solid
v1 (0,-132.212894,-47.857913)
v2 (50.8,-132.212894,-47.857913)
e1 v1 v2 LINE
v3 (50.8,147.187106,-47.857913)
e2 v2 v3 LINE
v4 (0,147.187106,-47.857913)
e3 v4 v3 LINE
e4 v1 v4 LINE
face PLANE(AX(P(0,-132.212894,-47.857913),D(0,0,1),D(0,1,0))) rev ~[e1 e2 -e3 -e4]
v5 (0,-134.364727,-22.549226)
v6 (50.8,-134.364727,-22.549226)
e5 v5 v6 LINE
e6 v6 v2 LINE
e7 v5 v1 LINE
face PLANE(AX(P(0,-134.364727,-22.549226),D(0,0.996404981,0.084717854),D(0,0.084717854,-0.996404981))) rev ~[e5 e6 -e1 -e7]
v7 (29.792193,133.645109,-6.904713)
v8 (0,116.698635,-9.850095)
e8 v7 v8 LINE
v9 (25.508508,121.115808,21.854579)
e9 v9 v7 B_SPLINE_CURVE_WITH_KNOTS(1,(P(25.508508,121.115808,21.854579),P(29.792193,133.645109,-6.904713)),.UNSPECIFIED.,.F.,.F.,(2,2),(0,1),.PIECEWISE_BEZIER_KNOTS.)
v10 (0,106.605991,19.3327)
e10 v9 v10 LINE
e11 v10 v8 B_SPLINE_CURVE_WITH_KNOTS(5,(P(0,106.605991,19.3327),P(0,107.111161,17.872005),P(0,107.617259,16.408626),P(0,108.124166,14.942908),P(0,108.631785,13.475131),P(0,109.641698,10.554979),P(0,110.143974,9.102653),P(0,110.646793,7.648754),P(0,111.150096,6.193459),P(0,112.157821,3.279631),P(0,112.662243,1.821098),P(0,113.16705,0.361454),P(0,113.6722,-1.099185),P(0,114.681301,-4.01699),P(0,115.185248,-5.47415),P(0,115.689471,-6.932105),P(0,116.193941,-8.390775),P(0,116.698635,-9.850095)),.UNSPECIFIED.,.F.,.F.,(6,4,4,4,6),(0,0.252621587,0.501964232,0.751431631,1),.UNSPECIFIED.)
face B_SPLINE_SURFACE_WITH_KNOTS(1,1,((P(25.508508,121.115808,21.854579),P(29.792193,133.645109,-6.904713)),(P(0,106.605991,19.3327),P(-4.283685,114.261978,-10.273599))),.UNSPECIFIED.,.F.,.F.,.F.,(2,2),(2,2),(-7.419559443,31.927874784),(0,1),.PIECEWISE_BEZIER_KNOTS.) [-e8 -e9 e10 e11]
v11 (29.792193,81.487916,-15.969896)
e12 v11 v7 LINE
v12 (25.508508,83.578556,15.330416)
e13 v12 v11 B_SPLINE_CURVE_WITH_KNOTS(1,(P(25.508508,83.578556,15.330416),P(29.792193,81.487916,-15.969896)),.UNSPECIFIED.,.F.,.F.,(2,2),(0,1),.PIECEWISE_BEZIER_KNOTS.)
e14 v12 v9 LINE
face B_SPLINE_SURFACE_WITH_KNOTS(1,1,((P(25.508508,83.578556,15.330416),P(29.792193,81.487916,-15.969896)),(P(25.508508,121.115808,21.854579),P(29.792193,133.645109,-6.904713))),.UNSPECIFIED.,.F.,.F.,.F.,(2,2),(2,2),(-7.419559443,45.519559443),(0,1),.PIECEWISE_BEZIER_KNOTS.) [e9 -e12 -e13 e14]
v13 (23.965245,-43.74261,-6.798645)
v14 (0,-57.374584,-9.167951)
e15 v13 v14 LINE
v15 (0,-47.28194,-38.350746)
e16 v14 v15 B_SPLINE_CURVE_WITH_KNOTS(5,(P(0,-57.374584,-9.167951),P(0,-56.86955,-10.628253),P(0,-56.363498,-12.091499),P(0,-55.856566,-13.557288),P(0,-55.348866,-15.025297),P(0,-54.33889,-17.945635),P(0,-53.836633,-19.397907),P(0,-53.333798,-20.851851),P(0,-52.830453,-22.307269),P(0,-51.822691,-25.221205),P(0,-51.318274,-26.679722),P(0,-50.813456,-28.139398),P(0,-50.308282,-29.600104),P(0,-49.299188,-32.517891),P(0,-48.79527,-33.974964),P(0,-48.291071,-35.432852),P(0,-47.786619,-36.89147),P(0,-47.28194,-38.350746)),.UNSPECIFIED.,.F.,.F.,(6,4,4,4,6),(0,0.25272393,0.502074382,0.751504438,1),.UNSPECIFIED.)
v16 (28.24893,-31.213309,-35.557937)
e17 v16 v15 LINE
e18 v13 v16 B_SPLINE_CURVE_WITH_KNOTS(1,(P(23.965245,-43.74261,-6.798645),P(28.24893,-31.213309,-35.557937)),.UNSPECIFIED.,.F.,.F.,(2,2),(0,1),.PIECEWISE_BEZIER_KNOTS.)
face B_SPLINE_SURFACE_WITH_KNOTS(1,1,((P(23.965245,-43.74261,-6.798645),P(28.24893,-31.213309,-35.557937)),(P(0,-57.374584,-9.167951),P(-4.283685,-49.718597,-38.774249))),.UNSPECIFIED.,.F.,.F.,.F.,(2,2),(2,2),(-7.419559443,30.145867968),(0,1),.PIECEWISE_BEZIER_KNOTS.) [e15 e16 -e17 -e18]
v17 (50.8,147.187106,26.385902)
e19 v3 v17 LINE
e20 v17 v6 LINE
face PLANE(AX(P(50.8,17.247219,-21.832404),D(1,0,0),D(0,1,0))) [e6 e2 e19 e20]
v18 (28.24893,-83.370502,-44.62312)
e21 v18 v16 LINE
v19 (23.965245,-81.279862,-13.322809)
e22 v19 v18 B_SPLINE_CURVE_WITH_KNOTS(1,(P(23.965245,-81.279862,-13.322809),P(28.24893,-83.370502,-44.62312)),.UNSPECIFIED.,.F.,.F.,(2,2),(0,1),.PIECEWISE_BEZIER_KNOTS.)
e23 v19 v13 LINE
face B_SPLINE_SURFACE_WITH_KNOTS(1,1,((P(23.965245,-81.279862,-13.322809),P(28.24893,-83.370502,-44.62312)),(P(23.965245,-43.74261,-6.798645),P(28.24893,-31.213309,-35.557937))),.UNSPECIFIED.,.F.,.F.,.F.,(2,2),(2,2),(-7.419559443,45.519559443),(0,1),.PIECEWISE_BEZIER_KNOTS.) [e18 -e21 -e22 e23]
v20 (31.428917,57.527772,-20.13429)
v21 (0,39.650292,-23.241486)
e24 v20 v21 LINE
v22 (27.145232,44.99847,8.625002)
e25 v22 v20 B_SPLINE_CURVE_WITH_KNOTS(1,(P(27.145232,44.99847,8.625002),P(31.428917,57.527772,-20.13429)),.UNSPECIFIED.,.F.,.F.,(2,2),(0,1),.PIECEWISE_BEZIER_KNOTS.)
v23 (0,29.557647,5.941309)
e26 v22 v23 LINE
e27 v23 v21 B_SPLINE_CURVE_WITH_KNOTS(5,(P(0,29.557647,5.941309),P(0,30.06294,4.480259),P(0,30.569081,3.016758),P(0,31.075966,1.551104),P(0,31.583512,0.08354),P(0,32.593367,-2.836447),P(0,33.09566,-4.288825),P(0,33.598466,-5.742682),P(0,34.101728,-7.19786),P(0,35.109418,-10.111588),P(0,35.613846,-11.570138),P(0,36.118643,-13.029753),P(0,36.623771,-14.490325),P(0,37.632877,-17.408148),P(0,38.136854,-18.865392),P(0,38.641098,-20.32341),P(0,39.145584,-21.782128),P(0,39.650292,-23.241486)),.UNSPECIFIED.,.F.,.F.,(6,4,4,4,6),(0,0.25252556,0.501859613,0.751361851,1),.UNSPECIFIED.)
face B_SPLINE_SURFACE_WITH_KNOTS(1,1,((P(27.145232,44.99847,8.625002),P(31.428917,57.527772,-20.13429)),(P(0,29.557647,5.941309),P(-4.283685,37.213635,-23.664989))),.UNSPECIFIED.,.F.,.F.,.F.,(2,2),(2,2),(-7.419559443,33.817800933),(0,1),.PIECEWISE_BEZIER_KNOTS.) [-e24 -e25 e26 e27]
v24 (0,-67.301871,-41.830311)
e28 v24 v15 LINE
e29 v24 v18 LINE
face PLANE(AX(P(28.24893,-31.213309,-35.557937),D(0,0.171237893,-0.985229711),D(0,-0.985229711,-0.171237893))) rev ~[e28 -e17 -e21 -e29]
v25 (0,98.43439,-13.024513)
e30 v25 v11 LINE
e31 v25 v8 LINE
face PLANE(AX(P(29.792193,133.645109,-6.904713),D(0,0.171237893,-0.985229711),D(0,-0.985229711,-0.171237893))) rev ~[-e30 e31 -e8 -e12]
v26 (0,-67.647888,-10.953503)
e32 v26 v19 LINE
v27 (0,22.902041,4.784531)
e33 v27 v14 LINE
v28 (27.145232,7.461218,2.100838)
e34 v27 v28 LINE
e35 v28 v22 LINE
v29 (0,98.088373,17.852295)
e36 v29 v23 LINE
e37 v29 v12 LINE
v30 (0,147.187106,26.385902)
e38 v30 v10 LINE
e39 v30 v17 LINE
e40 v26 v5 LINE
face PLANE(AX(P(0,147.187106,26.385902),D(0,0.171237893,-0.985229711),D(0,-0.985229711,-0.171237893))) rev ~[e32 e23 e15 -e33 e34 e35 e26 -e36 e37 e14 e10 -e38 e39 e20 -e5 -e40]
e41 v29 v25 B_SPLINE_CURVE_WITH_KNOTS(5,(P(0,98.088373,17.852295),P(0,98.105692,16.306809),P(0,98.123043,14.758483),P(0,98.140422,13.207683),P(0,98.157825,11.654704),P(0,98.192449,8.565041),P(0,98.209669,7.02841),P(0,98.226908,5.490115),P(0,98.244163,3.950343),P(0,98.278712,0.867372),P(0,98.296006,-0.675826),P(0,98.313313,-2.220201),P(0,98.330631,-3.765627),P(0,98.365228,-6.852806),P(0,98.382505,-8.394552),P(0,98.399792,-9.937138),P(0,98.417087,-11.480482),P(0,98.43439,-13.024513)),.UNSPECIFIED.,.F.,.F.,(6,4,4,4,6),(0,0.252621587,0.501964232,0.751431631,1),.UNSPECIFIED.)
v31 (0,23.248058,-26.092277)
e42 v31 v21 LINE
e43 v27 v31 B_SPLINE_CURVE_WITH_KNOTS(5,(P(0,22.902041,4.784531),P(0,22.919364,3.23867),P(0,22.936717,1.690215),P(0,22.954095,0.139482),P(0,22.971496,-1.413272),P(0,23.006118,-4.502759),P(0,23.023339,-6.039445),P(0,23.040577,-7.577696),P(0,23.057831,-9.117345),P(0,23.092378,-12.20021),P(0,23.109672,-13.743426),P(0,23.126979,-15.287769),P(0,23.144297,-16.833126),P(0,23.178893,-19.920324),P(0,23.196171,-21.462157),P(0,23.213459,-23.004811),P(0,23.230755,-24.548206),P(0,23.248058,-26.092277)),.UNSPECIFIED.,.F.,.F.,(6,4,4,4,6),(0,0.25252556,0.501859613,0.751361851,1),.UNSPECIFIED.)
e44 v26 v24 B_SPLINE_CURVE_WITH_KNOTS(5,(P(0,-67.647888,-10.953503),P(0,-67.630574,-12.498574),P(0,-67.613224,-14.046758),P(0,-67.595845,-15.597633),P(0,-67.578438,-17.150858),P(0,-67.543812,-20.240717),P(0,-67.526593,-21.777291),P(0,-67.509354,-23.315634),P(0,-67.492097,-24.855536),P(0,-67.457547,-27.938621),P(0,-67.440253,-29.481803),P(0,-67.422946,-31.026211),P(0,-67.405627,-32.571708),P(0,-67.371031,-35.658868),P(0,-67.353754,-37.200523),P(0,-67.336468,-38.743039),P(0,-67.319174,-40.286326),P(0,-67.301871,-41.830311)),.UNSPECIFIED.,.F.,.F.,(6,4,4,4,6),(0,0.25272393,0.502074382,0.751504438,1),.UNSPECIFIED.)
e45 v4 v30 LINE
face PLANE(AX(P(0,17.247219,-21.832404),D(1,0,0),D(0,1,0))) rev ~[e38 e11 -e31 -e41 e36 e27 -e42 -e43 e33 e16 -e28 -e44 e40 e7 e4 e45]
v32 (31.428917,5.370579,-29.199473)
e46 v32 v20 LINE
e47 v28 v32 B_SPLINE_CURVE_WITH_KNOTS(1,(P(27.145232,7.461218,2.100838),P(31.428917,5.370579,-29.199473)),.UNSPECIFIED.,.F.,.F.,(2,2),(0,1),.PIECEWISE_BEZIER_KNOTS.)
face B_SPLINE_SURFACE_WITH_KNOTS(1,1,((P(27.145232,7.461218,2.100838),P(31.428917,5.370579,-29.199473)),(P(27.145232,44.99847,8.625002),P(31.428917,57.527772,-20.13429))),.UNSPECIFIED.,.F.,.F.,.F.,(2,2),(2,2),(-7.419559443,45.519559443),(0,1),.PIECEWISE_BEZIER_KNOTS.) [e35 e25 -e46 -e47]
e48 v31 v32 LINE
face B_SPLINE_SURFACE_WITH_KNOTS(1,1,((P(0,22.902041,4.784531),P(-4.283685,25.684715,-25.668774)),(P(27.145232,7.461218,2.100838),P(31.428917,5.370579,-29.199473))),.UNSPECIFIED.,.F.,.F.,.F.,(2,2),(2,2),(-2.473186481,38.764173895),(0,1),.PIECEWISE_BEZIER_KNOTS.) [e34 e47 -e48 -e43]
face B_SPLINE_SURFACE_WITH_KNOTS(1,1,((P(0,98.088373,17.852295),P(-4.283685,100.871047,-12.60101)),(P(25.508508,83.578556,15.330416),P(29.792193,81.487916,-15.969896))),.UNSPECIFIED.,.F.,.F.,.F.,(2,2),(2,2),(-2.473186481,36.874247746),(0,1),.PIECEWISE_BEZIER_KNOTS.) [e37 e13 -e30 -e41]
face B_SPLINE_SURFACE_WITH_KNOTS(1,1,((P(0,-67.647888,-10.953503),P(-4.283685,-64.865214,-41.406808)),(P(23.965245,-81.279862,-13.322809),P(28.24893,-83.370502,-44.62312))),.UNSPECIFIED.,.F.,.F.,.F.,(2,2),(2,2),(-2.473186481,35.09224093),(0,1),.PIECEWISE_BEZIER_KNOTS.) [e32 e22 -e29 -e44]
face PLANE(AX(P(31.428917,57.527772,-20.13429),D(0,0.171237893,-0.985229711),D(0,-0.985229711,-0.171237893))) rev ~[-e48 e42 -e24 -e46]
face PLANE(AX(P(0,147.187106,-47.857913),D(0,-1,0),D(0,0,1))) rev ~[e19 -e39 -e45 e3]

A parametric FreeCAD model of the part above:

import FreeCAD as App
import Part
import Sketcher
Q = App.Units.Quantity

doc = App.newDocument("Part")
body = doc.addObject("PartDesign::Body", "Body")

# Sketch on YZ plane
sketch1 = body.newObject("Sketcher::SketchObject", "Sketch")
sketch1.AttachmentSupport = (doc.getObject("YZ_Plane"), [""])
sketch1.MapMode = "FlatFace"
sketch1.addGeometry([
    Part.LineSegment(App.Vector(-134, -23, 0), App.Vector(-132, -48, 0)),
    Part.LineSegment(App.Vector(-132, -48, 0), App.Vector(147, -48, 0)),
    Part.LineSegment(App.Vector(147, -48, 0), App.Vector(147, 26, 0)),
    Part.LineSegment(App.Vector(147, 26, 0), App.Vector(-134, -23, 0)),
], False)
sketch1.addConstraint([
    Sketcher.Constraint("Coincident", 0, 2, 1, 1),
    Sketcher.Constraint("Coincident", 1, 2, 2, 1),
    Sketcher.Constraint("Coincident", 2, 2, 3, 1),
    Sketcher.Constraint("Coincident", 3, 2, 0, 1),
    Sketcher.Constraint("Horizontal", 1),
    Sketcher.Constraint("Vertical", 2),
    Sketcher.Constraint("DistanceX", 1, 1, 1, 2, Q("11 in")),
    Sketcher.Constraint("Distance", 0, Q("1 in")),
    Sketcher.Constraint("Distance", 3, Q("285.77278 mm")),
    Sketcher.Constraint("DistanceY", 2, 1, 2, 2, Q("74.243815 mm")),
    Sketcher.Constraint("DistanceX", 0, 2, -1, 1, Q("132.212894 mm")),
    Sketcher.Constraint("DistanceY", 0, 2, -1, 1, Q("47.857913 mm")),
])
pad1 = body.newObject("PartDesign::Pad", "Pad")
pad1.Profile = sketch1
pad1.Length = Q("2 in")

# Sketch on an angled plane
sketch2 = body.newObject("Sketcher::SketchObject", "Sketch001")
sketch2.Placement = App.Placement(App.Vector(0, -0.135649, 0.780465), App.Rotation(App.Vector(1, 0, 0), App.Vector(0, 0.985229711, 0.171237893), App.Vector(0, -0.171237893, 0.985229711), "ZXY"))
sketch2.addGeometry([
    Part.LineSegment(App.Vector(24, -44, 0), App.Vector(0, -58, 0)),  # 0
    Part.LineSegment(App.Vector(0, -58, 0), App.Vector(0, -69, 0)),  # 1
    Part.LineSegment(App.Vector(0, -69, 0), App.Vector(24, -82, 0)),  # 2
    Part.LineSegment(App.Vector(24, -82, 0), App.Vector(24, -44, 0)),  # 3
    Part.LineSegment(App.Vector(26, 123, 0), App.Vector(0, 108, 0)),  # 4
    Part.LineSegment(App.Vector(0, 108, 0), App.Vector(0, 100, 0)),  # 5
    Part.LineSegment(App.Vector(0, 100, 0), App.Vector(26, 85, 0)),  # 6
    Part.LineSegment(App.Vector(26, 85, 0), App.Vector(26, 123, 0)),  # 7
    Part.LineSegment(App.Vector(27, 46, 0), App.Vector(0, 30, 0)),  # 8
    Part.LineSegment(App.Vector(0, 30, 0), App.Vector(0, 23, 0)),  # 9
    Part.LineSegment(App.Vector(0, 23, 0), App.Vector(27, 8, 0)),  # 10
    Part.LineSegment(App.Vector(27, 8, 0), App.Vector(27, 46, 0)),  # 11
], False)
sketch2.addConstraint([
    Sketcher.Constraint("Coincident", 0, 2, 1, 1),
    Sketcher.Constraint("Coincident", 1, 2, 2, 1),
    Sketcher.Constraint("Coincident", 2, 2, 3, 1),
    Sketcher.Constraint("Coincident", 3, 2, 0, 1),
    Sketcher.Constraint("Coincident", 4, 2, 5, 1),
    Sketcher.Constraint("Coincident", 5, 2, 6, 1),
    Sketcher.Constraint("Coincident", 6, 2, 7, 1),
    Sketcher.Constraint("Coincident", 7, 2, 4, 1),
    Sketcher.Constraint("Coincident", 8, 2, 9, 1),
    Sketcher.Constraint("Coincident", 9, 2, 10, 1),
    Sketcher.Constraint("Coincident", 10, 2, 11, 1),
    Sketcher.Constraint("Coincident", 11, 2, 8, 1),
    Sketcher.Constraint("Vertical", 1),
    Sketcher.Constraint("Vertical", 3),
    Sketcher.Constraint("Vertical", 5),
    Sketcher.Constraint("Vertical", 7),
    Sketcher.Constraint("Vertical", 9),
    Sketcher.Constraint("Vertical", 11),
    Sketcher.Constraint("PointOnObject", 0, 2, -2),
    Sketcher.Constraint("PointOnObject", 4, 2, -2),
    Sketcher.Constraint("PointOnObject", 8, 2, -2),
    Sketcher.Constraint("Parallel", 0, 4),
    Sketcher.Constraint("Parallel", 2, 6),
    Sketcher.Constraint("Parallel", 4, 8),
    Sketcher.Constraint("Parallel", 6, 10),
    Sketcher.Constraint("Equal", 3, 7),
    Sketcher.Constraint("Equal", 7, 11),
    Sketcher.Constraint("Equal", 0, 2),
    Sketcher.Constraint("DistanceY", 3, 1, 3, 2, Q("1.5 in")),
    Sketcher.Constraint("Angle", 0, Q("-150 deg")),
    Sketcher.Constraint("DistanceY", 1, 2, 1, 1, Q("10.427319 mm")),
    Sketcher.Constraint("DistanceY", 5, 2, 5, 1, Q("8.645312 mm")),
    Sketcher.Constraint("DistanceY", 9, 2, 9, 1, Q("6.755386 mm")),
    Sketcher.Constraint("DistanceY", -1, 1, 4, 2, Q("108.34188 mm")),
    Sketcher.Constraint("DistanceY", -1, 1, 8, 2, Q("30.13845 mm")),
    Sketcher.Constraint("DistanceY", 3, 2, 6, 2, Q("129.229929 mm")),
])
pocket1 = body.newObject("PartDesign::Pocket", "Pocket")
pocket1.Profile = sketch2
pocket1.Length = Q("1.2 in")
pocket1.TaperAngle = 8

doc.recompute()
